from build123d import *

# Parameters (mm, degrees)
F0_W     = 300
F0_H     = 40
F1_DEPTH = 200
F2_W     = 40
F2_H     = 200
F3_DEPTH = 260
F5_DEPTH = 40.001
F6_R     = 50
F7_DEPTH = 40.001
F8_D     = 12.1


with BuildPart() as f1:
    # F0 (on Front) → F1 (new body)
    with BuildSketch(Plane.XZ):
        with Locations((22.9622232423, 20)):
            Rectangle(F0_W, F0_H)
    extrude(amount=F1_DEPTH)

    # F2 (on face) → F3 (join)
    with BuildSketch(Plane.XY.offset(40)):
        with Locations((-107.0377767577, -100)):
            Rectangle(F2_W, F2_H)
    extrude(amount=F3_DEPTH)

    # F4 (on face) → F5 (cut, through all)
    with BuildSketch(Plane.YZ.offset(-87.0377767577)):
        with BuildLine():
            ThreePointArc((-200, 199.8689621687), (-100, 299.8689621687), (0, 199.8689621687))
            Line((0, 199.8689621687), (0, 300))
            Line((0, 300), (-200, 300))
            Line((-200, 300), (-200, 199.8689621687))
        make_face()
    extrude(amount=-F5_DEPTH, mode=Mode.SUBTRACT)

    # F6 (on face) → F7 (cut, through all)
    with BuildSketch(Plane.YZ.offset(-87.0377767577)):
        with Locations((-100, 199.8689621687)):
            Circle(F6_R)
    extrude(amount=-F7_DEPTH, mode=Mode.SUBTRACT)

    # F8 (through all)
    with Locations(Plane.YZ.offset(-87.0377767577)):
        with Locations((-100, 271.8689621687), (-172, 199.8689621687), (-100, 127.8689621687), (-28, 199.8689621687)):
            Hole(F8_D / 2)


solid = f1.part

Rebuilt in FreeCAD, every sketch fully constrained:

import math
import FreeCAD as App
import Part
import Sketcher
from FreeCAD import Vector

doc = App.newDocument("Part")
body = doc.addObject("PartDesign::Body", "Body")

# Sketch on XZ plane
sketch1 = body.newObject("Sketcher::SketchObject", "Sketch")
sketch1.AttachmentSupport = (doc.getObject("XZ_Plane"), [""])
sketch1.MapMode = "FlatFace"
sketch1.addGeometry(Part.LineSegment(Vector(-127, 40, 0), Vector(-127, 0, 0)), False)
sketch1.addGeometry(Part.LineSegment(Vector(-127, 0, 0), Vector(173, 0, 0)), False)
sketch1.addGeometry(Part.LineSegment(Vector(173, 0, 0), Vector(173, 40, 0)), False)
sketch1.addGeometry(Part.LineSegment(Vector(173, 40, 0), Vector(-127, 40, 0)), False)
sketch1.addConstraint(Sketcher.Constraint("Coincident", 0, 2, 1, 1))
sketch1.addConstraint(Sketcher.Constraint("Coincident", 1, 2, 2, 1))
sketch1.addConstraint(Sketcher.Constraint("Coincident", 2, 2, 3, 1))
sketch1.addConstraint(Sketcher.Constraint("Coincident", 3, 2, 0, 1))
sketch1.addConstraint(Sketcher.Constraint("Vertical", 0))
sketch1.addConstraint(Sketcher.Constraint("Horizontal", 1))
sketch1.addConstraint(Sketcher.Constraint("Vertical", 2))
sketch1.addConstraint(Sketcher.Constraint("Horizontal", 3))
sketch1.addConstraint(Sketcher.Constraint("PointOnObject", 0, 2, -1))
sketch1.addConstraint(Sketcher.Constraint("DistanceX", 1, 1, 1, 2, 300.0))
sketch1.addConstraint(Sketcher.Constraint("DistanceY", 0, 2, 0, 1, 40.0))
sketch1.addConstraint(Sketcher.Constraint("DistanceX", 0, 2, -1, 1, 127.037777))
pad1 = body.newObject("PartDesign::Pad", "Pad")
pad1.Profile = sketch1
pad1.Length = 200

# Sketch on XY plane
sketch2 = body.newObject("Sketcher::SketchObject", "Sketch001")
sketch2.AttachmentSupport = (doc.getObject("XY_Plane"), [""])
sketch2.MapMode = "FlatFace"
sketch2.AttachmentOffset = App.Placement(Vector(0, 0, 40), App.Rotation())
sketch2.addGeometry(Part.LineSegment(Vector(-127, 0, 0), Vector(-127, -200, 0)), False)
sketch2.addGeometry(Part.LineSegment(Vector(-127, -200, 0), Vector(-87, -200, 0)), False)
sketch2.addGeometry(Part.LineSegment(Vector(-87, -200, 0), Vector(-87, 0, 0)), False)
sketch2.addGeometry(Part.LineSegment(Vector(-87, 0, 0), Vector(-127, 0, 0)), False)
sketch2.addConstraint(Sketcher.Constraint("Coincident", 0, 2, 1, 1))
sketch2.addConstraint(Sketcher.Constraint("Coincident", 1, 2, 2, 1))
sketch2.addConstraint(Sketcher.Constraint("Coincident", 2, 2, 3, 1))
sketch2.addConstraint(Sketcher.Constraint("Coincident", 3, 2, 0, 1))
sketch2.addConstraint(Sketcher.Constraint("Vertical", 0))
sketch2.addConstraint(Sketcher.Constraint("Horizontal", 1))
sketch2.addConstraint(Sketcher.Constraint("Vertical", 2))
sketch2.addConstraint(Sketcher.Constraint("Horizontal", 3))
sketch2.addConstraint(Sketcher.Constraint("PointOnObject", 2, 2, -1))
sketch2.addConstraint(Sketcher.Constraint("DistanceX", 1, 1, 1, 2, 40.0))
sketch2.addConstraint(Sketcher.Constraint("DistanceY", 0, 2, 0, 1, 200.0))
sketch2.addConstraint(Sketcher.Constraint("DistanceX", 0, 2, -1, 1, 127.037777))
pad2 = body.newObject("PartDesign::Pad", "Pad001")
pad2.Profile = sketch2
pad2.Length = 260

# Sketch on YZ plane
sketch3 = body.newObject("Sketcher::SketchObject", "Sketch002")
sketch3.AttachmentSupport = (doc.getObject("YZ_Plane"), [""])
sketch3.MapMode = "FlatFace"
sketch3.AttachmentOffset = App.Placement(Vector(0, 0, -87.037777), App.Rotation())
sketch3.addGeometry(Part.ArcOfCircle(Part.Circle(Vector(-100, 200, 0), Vector(0, 0, 1), 100), math.radians(0), math.radians(180)), False)
sketch3.addGeometry(Part.LineSegment(Vector(0, 200, 0), Vector(0, 300, 0)), False)
sketch3.addGeometry(Part.LineSegment(Vector(0, 300, 0), Vector(-200, 300, 0)), False)
sketch3.addGeometry(Part.LineSegment(Vector(-200, 300, 0), Vector(-200, 200, 0)), False)
sketch3.addConstraint(Sketcher.Constraint("Tangent", 0, 1, 1, 1))
sketch3.addConstraint(Sketcher.Constraint("Coincident", 1, 2, 2, 1))
sketch3.addConstraint(Sketcher.Constraint("Coincident", 2, 2, 3, 1))
sketch3.addConstraint(Sketcher.Constraint("Tangent", 3, 2, 0, 2))
sketch3.addConstraint(Sketcher.Constraint("Vertical", 1))
sketch3.addConstraint(Sketcher.Constraint("Horizontal", 2))
sketch3.addConstraint(Sketcher.Constraint("Vertical", 3))
sketch3.addConstraint(Sketcher.Constraint("PointOnObject", 0, 1, -2))
sketch3.addConstraint(Sketcher.Constraint("Radius", 0, 100.0))
sketch3.addConstraint(Sketcher.Constraint("DistanceY", -1, 1, 1, 2, 300.0))
sketch3.addConstraint(Sketcher.Constraint("DistanceY", 1, 1, 1, 2, 100.131038))
pocket1 = body.newObject("PartDesign::Pocket", "Pocket")
pocket1.Profile = sketch3
pocket1.Type = "ThroughAll"

# Sketch on YZ plane
sketch4 = body.newObject("Sketcher::SketchObject", "Sketch003")
sketch4.AttachmentSupport = (doc.getObject("YZ_Plane"), [""])
sketch4.MapMode = "FlatFace"
sketch4.AttachmentOffset = App.Placement(Vector(0, 0, -87.037777), App.Rotation())
sketch4.addGeometry(Part.Circle(Vector(-100, 200, 0), Vector(0, 0, 1), 50), False)
sketch4.addConstraint(Sketcher.Constraint("Diameter", 0, 100.0))
sketch4.addConstraint(Sketcher.Constraint("DistanceX", 0, 3, -1, 1, 100.0))
sketch4.addConstraint(Sketcher.Constraint("DistanceY", -1, 1, 0, 3, 199.868962))
pocket2 = body.newObject("PartDesign::Pocket", "Pocket001")
pocket2.Profile = sketch4
pocket2.Type = "ThroughAll"

# Sketch on YZ plane
sketch5 = body.newObject("Sketcher::SketchObject", "Sketch004")
sketch5.AttachmentSupport = (doc.getObject("YZ_Plane"), [""])
sketch5.MapMode = "FlatFace"
sketch5.AttachmentOffset = App.Placement(Vector(0, 0, -87.037777), App.Rotation())
sketch5.addGeometry(Part.Circle(Vector(-100, 272, 0), Vector(0, 0, 1), 6), False)
sketch5.addGeometry(Part.Circle(Vector(-172, 200, 0), Vector(0, 0, 1), 6), False)
sketch5.addGeometry(Part.Circle(Vector(-100, 128, 0), Vector(0, 0, 1), 6), False)
sketch5.addGeometry(Part.Circle(Vector(-28, 200, 0), Vector(0, 0, 1), 6), False)
sketch5.addConstraint(Sketcher.Constraint("Equal", 0, 1))
sketch5.addConstraint(Sketcher.Constraint("Equal", 1, 2))
sketch5.addConstraint(Sketcher.Constraint("Equal", 2, 3))
sketch5.addConstraint(Sketcher.Constraint("Horizontal", 1, 3, 3, 3))
sketch5.addConstraint(Sketcher.Constraint("Vertical", 0, 3, 2, 3))
sketch5.addConstraint(Sketcher.Constraint("Diameter", 0, 12.1))
sketch5.addConstraint(Sketcher.Constraint("DistanceX", 0, 3, -1, 1, 100.0))
sketch5.addConstraint(Sketcher.Constraint("DistanceX", 1, 3, -1, 1, 172.0))
sketch5.addConstraint(Sketcher.Constraint("DistanceX", 3, 3, -1, 1, 28.0))
sketch5.addConstraint(Sketcher.Constraint("DistanceY", 1, 3, 0, 3, 72.0))
sketch5.addConstraint(Sketcher.Constraint("DistanceY", 2, 3, 1, 3, 72.0))
sketch5.addConstraint(Sketcher.Constraint("DistanceY", -1, 1, 0, 3, 271.868962))
doc.recompute()
hole = body.newObject("PartDesign::Hole", "Hole")
hole.Profile = sketch5
hole.ThreadType = "None"
hole.Diameter = 12.1
hole.DepthType = "ThroughAll"

doc.recompute()
